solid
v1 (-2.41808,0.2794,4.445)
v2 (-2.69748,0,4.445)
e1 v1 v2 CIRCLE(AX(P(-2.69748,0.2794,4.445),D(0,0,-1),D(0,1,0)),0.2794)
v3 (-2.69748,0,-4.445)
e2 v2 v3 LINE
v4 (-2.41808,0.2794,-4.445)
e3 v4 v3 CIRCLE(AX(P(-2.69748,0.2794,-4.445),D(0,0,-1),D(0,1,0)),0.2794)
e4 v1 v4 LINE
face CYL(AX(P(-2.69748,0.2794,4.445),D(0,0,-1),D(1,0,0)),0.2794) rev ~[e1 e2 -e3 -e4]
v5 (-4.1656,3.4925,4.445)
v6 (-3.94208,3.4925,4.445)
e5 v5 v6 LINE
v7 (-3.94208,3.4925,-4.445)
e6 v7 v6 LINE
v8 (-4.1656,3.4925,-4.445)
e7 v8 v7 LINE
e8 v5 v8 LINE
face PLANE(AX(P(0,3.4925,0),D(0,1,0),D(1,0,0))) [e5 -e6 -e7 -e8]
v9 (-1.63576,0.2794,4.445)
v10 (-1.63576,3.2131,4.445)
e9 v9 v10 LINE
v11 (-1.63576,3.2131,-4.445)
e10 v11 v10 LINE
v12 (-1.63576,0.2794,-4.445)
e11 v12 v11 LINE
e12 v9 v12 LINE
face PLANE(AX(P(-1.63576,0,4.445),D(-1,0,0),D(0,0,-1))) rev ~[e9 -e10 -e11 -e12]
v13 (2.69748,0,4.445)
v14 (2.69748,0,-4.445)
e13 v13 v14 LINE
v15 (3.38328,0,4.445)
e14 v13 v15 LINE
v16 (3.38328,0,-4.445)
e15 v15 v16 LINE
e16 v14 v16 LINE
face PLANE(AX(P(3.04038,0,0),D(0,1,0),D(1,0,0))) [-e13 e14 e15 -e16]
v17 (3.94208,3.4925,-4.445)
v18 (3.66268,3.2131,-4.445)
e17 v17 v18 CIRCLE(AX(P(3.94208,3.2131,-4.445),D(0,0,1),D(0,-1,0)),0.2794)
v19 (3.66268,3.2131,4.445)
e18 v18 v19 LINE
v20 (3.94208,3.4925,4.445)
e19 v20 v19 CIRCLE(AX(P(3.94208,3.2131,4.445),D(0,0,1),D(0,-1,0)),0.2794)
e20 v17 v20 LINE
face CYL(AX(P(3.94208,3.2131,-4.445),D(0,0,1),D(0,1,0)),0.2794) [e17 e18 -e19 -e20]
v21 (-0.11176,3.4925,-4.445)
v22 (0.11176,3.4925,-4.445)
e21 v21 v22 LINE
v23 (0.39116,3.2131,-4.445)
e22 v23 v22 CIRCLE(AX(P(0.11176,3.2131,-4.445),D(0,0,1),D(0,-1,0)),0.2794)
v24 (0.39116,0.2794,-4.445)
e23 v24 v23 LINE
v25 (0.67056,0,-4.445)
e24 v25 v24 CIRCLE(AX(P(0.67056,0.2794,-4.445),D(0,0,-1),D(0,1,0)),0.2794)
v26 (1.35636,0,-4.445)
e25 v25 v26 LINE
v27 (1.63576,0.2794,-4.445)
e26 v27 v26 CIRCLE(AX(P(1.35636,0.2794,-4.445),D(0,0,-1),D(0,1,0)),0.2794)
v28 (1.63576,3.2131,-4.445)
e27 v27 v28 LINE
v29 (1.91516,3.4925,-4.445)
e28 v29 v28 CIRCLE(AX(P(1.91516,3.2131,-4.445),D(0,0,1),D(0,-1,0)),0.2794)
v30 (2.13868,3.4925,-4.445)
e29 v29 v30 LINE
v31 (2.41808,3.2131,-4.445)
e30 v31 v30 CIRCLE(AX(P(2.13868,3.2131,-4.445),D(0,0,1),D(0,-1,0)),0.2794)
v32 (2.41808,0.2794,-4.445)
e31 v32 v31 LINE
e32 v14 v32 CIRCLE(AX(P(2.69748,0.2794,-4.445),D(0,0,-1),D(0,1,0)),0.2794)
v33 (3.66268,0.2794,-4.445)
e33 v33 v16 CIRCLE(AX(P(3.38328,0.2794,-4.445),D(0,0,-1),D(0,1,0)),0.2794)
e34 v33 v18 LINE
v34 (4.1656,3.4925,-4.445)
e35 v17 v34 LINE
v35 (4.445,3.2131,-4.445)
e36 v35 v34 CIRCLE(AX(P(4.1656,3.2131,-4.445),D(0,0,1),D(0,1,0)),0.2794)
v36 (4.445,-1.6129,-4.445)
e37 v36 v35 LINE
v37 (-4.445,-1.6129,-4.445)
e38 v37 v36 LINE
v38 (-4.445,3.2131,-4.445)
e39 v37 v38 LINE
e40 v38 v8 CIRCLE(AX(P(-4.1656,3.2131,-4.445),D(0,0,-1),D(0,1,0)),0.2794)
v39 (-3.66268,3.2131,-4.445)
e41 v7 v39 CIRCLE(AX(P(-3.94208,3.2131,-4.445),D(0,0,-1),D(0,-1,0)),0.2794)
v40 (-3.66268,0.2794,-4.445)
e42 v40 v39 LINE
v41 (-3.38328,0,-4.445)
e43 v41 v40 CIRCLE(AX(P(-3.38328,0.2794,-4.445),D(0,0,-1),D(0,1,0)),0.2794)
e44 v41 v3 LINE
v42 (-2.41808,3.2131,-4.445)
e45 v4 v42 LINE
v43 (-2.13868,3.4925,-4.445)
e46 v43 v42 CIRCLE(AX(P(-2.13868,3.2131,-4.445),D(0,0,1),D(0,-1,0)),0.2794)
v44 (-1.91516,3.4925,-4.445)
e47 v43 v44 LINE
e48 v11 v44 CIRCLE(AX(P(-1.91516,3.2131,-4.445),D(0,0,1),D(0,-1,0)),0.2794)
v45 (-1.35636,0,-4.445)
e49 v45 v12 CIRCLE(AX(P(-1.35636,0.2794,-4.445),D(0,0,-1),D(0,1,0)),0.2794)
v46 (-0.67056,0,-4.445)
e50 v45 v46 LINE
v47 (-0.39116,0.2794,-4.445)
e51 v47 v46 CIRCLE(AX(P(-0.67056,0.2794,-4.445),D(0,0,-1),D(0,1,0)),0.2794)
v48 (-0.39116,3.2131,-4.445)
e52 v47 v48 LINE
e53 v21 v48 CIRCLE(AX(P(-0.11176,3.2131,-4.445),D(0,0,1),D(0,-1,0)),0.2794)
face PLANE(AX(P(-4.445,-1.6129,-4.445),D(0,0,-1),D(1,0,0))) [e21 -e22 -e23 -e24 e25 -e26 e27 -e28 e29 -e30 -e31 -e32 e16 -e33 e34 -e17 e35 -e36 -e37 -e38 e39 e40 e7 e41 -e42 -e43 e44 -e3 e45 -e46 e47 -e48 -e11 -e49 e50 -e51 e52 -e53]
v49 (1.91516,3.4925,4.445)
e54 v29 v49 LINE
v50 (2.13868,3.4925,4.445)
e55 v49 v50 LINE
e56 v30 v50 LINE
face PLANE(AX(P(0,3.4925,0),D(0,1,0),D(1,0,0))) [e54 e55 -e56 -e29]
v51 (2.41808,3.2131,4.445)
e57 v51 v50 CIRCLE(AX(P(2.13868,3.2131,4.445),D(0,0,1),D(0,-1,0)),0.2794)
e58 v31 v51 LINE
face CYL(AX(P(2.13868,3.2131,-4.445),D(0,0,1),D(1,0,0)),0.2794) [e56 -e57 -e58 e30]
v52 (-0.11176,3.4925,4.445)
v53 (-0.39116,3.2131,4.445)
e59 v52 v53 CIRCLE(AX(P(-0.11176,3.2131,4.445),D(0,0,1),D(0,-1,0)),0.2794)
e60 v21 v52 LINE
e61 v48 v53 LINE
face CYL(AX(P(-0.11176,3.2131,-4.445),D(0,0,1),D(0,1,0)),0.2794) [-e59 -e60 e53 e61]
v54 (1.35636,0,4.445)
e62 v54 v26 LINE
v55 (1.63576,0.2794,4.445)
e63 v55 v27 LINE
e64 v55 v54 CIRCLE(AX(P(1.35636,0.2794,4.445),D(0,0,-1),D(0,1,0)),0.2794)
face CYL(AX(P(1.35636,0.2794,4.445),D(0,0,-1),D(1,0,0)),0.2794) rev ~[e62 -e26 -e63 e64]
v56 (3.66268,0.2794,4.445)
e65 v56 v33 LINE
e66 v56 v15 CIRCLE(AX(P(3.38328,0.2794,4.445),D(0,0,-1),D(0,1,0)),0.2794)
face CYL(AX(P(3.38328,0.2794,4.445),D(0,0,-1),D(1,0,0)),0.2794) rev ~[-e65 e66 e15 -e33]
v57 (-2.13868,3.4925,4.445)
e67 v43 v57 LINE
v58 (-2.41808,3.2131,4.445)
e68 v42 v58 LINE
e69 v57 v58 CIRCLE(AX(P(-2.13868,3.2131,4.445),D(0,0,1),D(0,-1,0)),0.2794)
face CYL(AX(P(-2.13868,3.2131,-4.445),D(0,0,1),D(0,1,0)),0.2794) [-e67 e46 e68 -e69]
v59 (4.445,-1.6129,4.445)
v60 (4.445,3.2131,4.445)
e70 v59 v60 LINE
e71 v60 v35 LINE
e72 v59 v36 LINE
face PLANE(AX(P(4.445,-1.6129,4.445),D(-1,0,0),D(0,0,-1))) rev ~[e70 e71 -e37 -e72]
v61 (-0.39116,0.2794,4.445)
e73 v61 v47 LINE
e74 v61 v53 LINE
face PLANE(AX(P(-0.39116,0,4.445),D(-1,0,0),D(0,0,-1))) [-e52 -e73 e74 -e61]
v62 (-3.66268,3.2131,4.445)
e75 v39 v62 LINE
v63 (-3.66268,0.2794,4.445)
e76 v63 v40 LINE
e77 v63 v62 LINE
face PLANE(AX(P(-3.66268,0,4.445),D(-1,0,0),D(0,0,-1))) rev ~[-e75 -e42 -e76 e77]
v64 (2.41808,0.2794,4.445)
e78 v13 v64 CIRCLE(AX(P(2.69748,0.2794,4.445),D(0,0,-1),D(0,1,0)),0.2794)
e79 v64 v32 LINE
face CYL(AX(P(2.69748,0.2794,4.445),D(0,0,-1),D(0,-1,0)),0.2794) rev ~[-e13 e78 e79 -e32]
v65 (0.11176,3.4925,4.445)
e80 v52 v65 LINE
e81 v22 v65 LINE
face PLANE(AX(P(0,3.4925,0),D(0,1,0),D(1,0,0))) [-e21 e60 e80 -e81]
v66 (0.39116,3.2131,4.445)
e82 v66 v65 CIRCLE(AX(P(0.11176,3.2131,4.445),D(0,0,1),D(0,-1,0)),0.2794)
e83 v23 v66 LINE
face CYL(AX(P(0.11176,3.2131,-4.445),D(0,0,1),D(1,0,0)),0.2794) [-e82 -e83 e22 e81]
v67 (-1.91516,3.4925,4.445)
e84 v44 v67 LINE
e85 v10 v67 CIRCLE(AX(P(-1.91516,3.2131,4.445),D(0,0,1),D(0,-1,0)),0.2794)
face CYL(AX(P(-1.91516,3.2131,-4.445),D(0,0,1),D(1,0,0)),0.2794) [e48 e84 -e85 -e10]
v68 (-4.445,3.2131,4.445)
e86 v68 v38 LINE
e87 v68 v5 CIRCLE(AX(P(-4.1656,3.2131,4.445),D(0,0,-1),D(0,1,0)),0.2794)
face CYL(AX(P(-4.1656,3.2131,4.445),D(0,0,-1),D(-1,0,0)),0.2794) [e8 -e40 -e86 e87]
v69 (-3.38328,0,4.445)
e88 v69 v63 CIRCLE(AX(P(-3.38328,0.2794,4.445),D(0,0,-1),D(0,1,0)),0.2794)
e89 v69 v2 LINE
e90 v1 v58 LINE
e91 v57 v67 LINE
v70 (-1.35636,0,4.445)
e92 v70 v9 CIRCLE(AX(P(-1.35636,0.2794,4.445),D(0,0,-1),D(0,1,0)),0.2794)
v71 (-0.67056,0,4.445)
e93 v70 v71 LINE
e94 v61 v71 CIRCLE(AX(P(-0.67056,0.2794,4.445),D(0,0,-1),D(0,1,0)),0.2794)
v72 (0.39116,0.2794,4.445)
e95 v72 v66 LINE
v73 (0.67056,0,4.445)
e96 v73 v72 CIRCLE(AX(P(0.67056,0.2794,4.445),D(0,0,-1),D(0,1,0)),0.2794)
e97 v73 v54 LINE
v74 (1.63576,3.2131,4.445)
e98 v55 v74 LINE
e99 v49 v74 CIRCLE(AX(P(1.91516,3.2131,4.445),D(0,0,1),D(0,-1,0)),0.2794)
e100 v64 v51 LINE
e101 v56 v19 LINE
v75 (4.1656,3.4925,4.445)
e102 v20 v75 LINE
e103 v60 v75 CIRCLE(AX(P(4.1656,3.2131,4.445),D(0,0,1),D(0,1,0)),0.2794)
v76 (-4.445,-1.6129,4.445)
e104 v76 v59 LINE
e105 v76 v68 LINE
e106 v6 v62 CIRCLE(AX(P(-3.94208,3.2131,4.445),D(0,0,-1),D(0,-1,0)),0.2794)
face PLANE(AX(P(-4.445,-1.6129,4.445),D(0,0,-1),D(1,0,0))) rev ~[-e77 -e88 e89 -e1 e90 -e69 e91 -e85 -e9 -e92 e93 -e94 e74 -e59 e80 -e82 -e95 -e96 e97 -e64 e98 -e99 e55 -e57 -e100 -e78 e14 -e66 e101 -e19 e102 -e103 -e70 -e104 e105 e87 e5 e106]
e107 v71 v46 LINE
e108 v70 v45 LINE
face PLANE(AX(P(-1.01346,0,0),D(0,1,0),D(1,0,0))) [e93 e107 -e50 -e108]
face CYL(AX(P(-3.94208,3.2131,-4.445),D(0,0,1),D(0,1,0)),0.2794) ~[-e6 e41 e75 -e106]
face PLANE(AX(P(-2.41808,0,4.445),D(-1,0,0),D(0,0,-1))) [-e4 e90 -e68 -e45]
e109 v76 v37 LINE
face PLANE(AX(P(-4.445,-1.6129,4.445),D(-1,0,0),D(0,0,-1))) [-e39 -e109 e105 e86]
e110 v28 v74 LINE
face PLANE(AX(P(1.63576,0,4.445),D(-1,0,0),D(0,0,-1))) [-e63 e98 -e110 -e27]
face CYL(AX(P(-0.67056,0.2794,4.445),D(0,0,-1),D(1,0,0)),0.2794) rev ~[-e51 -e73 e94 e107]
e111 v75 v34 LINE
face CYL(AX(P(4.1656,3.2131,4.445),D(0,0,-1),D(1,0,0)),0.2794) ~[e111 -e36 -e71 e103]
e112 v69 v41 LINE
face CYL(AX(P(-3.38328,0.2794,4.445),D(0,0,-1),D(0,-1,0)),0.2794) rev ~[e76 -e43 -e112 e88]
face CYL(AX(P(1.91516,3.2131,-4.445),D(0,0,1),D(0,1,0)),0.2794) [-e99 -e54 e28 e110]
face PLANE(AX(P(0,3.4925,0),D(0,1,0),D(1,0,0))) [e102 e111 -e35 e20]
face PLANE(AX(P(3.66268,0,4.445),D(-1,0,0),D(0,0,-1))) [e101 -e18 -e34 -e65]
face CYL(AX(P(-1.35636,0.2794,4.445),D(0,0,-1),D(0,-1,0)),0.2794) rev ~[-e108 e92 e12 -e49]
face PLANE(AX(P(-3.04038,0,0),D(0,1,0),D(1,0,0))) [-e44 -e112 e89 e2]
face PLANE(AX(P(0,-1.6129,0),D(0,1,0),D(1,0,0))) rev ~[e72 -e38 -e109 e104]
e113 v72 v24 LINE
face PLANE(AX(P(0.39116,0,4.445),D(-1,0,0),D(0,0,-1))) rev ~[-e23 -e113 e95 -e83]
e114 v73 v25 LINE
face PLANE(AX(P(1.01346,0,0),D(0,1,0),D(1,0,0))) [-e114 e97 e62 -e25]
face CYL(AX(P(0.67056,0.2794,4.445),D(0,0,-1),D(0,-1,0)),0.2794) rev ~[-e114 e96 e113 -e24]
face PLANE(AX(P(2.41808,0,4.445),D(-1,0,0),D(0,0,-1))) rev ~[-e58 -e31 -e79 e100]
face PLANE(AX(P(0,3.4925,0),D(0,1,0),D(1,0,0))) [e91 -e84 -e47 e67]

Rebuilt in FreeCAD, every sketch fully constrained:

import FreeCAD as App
import Part
import Sketcher
from FreeCAD import Vector
Q = App.Units.Quantity


def edges_at(feature, points):
    """Names of the edges that pass closest to the given points."""
    edges = feature.Shape.Edges
    near = lambda p: min(range(len(edges)), key=lambda i: edges[i].distToShape(Part.Vertex(*p))[0])
    return sorted({f"Edge{near(p) + 1}" for p in points})


def add_polygon(sketch, points):
    """Adds a closed chain of lines whose ends are joined by coincident constraints."""
    first, n = sketch.GeometryCount, len(points)
    for a, b in zip(points, points[1:] + points[:1]):
        sketch.addGeometry(Part.LineSegment(App.Vector(*a, 0), App.Vector(*b, 0)), False)
    for i in range(n):
        sketch.addConstraint(Sketcher.Constraint("Coincident", first + i, 2, first + (i + 1) % n, 1))

doc = App.newDocument("Part")
body = doc.addObject("PartDesign::Body", "Body")

# Sketch on XZ plane
sketch1 = body.newObject("Sketcher::SketchObject", "Sketch")
sketch1.AttachmentSupport = (doc.getObject("XZ_Plane"), [""])
sketch1.MapMode = "FlatFace"
sketch1.AttachmentOffset = App.Placement(Vector(0, 0, 0.0635 * 25.4), App.Rotation())
add_polygon(sketch1, [(-4.445, -4.445), (-4.445, 4.445), (4.445, 4.445), (4.445, -4.445)])  # lines 0-3
sketch1.addConstraint(Sketcher.Constraint("Vertical", 0))
sketch1.addConstraint(Sketcher.Constraint("Horizontal", 1))
sketch1.addConstraint(Sketcher.Constraint("Vertical", 2))
sketch1.addConstraint(Sketcher.Constraint("Horizontal", 3))
sketch1.addConstraint(Sketcher.Constraint("Symmetric", 0, 2, 2, 2, -1, 1))
sketch1.addConstraint(Sketcher.Constraint("Equal", 3, 0))
sketch1.addConstraint(Sketcher.Constraint("DistanceX", 1, 1, 1, 2, Q("0.35 in")))
pad1 = body.newObject("PartDesign::Pad", "Pad")
pad1.Profile = sketch1
pad1.Length = Q("0.201 in")
pad1.Reversed = True

# Sketch on XZ plane
sketch2 = body.newObject("Sketcher::SketchObject", "Sketch001")
sketch2.AttachmentSupport = (doc.getObject("XZ_Plane"), [""])
sketch2.MapMode = "FlatFace"
add_polygon(sketch2, [(-3.66268, -4.445), (-3.66268, 4.445), (-2.41808, 4.445), (-2.41808, -4.445)])  # lines 0-3
add_polygon(sketch2, [(-1.63576, -4.445), (-1.63576, 4.445), (-0.39116, 4.445), (-0.39116, -4.445)])  # lines 4-7
add_polygon(sketch2, [(0.39116, -4.445), (0.39116, 4.445), (1.63576, 4.445), (1.63576, -4.445)])  # lines 8-11
add_polygon(sketch2, [(2.41808, -4.445), (2.41808, 4.445), (3.66268, 4.445), (3.66268, -4.445)])  # lines 12-15
sketch2.addConstraint(Sketcher.Constraint("Vertical", 0))
sketch2.addConstraint(Sketcher.Constraint("Horizontal", 1))
sketch2.addConstraint(Sketcher.Constraint("Vertical", 2))
sketch2.addConstraint(Sketcher.Constraint("Horizontal", 3))
sketch2.addConstraint(Sketcher.Constraint("Vertical", 4))
sketch2.addConstraint(Sketcher.Constraint("Horizontal", 5))
sketch2.addConstraint(Sketcher.Constraint("Vertical", 6))
sketch2.addConstraint(Sketcher.Constraint("Horizontal", 7))
sketch2.addConstraint(Sketcher.Constraint("Vertical", 8))
sketch2.addConstraint(Sketcher.Constraint("Horizontal", 9))
sketch2.addConstraint(Sketcher.Constraint("Vertical", 10))
sketch2.addConstraint(Sketcher.Constraint("Horizontal", 11))
sketch2.addConstraint(Sketcher.Constraint("Vertical", 12))
sketch2.addConstraint(Sketcher.Constraint("Horizontal", 13))
sketch2.addConstraint(Sketcher.Constraint("Vertical", 14))
sketch2.addConstraint(Sketcher.Constraint("Horizontal", 15))
sketch2.addConstraint(Sketcher.Constraint("Symmetric", 6, 2, 8, 2, -1, 1))
sketch2.addConstraint(Sketcher.Constraint("Symmetric", 4, 2, 10, 2, -1, 1))
sketch2.addConstraint(Sketcher.Constraint("Symmetric", 2, 2, 12, 2, -1, 1))
sketch2.addConstraint(Sketcher.Constraint("Symmetric", 0, 2, 14, 2, -1, 1))
sketch2.addConstraint(Sketcher.Constraint("Horizontal", 1, 2, 4, 2))
sketch2.addConstraint(Sketcher.Constraint("Horizontal", 3, 2, 6, 2))
sketch2.addConstraint(Sketcher.Constraint("Horizontal", 5, 2, 8, 2))
sketch2.addConstraint(Sketcher.Constraint("Equal", 3, 5))
sketch2.addConstraint(Sketcher.Constraint("DistanceY", 0, 1, 0, 2, Q("0.35 in")))
sketch2.addConstraint(Sketcher.Constraint("DistanceX", 1, 1, 1, 2, Q("0.049 in")))
sketch2.addConstraint(Sketcher.Constraint("DistanceX", 0, 2, -1, 1, Q("0.1442 in")))
sketch2.addConstraint(Sketcher.Constraint("DistanceX", 4, 2, -1, 1, Q("0.0644 in")))
pocket1 = body.newObject("PartDesign::Pocket", "Pocket")
pocket1.Profile = sketch2
pocket1.Type = "ThroughAll"
doc.recompute()

fillet = body.newObject("PartDesign::Fillet", "Fillet")
fillet.Base = (pocket1, edges_at(pocket1, [
    (-4.445, 3.493, 0),
    (-2.418, 3.493, 0),
    (-3.663, 0, 0),
    (-3.663, 3.493, 0),
    (-2.418, 0, 0),
    (4.445, 3.493, 0),
    (-1.636, 0, 0),
    (-0.391, 3.493, 0),
    (-1.636, 3.493, 0),
    (-0.391, 0, 0),
    (0.391, 0, 0),
    (1.636, 3.493, 0),
    (0.391, 3.493, 0),
    (1.636, 0, 0),
    (2.418, 0, 0),
    (3.663, 3.493, 0),
    (2.418, 3.493, 0),
    (3.663, 0, 0),
]))
fillet.Radius = Q("0.011 in")

doc.recompute()
